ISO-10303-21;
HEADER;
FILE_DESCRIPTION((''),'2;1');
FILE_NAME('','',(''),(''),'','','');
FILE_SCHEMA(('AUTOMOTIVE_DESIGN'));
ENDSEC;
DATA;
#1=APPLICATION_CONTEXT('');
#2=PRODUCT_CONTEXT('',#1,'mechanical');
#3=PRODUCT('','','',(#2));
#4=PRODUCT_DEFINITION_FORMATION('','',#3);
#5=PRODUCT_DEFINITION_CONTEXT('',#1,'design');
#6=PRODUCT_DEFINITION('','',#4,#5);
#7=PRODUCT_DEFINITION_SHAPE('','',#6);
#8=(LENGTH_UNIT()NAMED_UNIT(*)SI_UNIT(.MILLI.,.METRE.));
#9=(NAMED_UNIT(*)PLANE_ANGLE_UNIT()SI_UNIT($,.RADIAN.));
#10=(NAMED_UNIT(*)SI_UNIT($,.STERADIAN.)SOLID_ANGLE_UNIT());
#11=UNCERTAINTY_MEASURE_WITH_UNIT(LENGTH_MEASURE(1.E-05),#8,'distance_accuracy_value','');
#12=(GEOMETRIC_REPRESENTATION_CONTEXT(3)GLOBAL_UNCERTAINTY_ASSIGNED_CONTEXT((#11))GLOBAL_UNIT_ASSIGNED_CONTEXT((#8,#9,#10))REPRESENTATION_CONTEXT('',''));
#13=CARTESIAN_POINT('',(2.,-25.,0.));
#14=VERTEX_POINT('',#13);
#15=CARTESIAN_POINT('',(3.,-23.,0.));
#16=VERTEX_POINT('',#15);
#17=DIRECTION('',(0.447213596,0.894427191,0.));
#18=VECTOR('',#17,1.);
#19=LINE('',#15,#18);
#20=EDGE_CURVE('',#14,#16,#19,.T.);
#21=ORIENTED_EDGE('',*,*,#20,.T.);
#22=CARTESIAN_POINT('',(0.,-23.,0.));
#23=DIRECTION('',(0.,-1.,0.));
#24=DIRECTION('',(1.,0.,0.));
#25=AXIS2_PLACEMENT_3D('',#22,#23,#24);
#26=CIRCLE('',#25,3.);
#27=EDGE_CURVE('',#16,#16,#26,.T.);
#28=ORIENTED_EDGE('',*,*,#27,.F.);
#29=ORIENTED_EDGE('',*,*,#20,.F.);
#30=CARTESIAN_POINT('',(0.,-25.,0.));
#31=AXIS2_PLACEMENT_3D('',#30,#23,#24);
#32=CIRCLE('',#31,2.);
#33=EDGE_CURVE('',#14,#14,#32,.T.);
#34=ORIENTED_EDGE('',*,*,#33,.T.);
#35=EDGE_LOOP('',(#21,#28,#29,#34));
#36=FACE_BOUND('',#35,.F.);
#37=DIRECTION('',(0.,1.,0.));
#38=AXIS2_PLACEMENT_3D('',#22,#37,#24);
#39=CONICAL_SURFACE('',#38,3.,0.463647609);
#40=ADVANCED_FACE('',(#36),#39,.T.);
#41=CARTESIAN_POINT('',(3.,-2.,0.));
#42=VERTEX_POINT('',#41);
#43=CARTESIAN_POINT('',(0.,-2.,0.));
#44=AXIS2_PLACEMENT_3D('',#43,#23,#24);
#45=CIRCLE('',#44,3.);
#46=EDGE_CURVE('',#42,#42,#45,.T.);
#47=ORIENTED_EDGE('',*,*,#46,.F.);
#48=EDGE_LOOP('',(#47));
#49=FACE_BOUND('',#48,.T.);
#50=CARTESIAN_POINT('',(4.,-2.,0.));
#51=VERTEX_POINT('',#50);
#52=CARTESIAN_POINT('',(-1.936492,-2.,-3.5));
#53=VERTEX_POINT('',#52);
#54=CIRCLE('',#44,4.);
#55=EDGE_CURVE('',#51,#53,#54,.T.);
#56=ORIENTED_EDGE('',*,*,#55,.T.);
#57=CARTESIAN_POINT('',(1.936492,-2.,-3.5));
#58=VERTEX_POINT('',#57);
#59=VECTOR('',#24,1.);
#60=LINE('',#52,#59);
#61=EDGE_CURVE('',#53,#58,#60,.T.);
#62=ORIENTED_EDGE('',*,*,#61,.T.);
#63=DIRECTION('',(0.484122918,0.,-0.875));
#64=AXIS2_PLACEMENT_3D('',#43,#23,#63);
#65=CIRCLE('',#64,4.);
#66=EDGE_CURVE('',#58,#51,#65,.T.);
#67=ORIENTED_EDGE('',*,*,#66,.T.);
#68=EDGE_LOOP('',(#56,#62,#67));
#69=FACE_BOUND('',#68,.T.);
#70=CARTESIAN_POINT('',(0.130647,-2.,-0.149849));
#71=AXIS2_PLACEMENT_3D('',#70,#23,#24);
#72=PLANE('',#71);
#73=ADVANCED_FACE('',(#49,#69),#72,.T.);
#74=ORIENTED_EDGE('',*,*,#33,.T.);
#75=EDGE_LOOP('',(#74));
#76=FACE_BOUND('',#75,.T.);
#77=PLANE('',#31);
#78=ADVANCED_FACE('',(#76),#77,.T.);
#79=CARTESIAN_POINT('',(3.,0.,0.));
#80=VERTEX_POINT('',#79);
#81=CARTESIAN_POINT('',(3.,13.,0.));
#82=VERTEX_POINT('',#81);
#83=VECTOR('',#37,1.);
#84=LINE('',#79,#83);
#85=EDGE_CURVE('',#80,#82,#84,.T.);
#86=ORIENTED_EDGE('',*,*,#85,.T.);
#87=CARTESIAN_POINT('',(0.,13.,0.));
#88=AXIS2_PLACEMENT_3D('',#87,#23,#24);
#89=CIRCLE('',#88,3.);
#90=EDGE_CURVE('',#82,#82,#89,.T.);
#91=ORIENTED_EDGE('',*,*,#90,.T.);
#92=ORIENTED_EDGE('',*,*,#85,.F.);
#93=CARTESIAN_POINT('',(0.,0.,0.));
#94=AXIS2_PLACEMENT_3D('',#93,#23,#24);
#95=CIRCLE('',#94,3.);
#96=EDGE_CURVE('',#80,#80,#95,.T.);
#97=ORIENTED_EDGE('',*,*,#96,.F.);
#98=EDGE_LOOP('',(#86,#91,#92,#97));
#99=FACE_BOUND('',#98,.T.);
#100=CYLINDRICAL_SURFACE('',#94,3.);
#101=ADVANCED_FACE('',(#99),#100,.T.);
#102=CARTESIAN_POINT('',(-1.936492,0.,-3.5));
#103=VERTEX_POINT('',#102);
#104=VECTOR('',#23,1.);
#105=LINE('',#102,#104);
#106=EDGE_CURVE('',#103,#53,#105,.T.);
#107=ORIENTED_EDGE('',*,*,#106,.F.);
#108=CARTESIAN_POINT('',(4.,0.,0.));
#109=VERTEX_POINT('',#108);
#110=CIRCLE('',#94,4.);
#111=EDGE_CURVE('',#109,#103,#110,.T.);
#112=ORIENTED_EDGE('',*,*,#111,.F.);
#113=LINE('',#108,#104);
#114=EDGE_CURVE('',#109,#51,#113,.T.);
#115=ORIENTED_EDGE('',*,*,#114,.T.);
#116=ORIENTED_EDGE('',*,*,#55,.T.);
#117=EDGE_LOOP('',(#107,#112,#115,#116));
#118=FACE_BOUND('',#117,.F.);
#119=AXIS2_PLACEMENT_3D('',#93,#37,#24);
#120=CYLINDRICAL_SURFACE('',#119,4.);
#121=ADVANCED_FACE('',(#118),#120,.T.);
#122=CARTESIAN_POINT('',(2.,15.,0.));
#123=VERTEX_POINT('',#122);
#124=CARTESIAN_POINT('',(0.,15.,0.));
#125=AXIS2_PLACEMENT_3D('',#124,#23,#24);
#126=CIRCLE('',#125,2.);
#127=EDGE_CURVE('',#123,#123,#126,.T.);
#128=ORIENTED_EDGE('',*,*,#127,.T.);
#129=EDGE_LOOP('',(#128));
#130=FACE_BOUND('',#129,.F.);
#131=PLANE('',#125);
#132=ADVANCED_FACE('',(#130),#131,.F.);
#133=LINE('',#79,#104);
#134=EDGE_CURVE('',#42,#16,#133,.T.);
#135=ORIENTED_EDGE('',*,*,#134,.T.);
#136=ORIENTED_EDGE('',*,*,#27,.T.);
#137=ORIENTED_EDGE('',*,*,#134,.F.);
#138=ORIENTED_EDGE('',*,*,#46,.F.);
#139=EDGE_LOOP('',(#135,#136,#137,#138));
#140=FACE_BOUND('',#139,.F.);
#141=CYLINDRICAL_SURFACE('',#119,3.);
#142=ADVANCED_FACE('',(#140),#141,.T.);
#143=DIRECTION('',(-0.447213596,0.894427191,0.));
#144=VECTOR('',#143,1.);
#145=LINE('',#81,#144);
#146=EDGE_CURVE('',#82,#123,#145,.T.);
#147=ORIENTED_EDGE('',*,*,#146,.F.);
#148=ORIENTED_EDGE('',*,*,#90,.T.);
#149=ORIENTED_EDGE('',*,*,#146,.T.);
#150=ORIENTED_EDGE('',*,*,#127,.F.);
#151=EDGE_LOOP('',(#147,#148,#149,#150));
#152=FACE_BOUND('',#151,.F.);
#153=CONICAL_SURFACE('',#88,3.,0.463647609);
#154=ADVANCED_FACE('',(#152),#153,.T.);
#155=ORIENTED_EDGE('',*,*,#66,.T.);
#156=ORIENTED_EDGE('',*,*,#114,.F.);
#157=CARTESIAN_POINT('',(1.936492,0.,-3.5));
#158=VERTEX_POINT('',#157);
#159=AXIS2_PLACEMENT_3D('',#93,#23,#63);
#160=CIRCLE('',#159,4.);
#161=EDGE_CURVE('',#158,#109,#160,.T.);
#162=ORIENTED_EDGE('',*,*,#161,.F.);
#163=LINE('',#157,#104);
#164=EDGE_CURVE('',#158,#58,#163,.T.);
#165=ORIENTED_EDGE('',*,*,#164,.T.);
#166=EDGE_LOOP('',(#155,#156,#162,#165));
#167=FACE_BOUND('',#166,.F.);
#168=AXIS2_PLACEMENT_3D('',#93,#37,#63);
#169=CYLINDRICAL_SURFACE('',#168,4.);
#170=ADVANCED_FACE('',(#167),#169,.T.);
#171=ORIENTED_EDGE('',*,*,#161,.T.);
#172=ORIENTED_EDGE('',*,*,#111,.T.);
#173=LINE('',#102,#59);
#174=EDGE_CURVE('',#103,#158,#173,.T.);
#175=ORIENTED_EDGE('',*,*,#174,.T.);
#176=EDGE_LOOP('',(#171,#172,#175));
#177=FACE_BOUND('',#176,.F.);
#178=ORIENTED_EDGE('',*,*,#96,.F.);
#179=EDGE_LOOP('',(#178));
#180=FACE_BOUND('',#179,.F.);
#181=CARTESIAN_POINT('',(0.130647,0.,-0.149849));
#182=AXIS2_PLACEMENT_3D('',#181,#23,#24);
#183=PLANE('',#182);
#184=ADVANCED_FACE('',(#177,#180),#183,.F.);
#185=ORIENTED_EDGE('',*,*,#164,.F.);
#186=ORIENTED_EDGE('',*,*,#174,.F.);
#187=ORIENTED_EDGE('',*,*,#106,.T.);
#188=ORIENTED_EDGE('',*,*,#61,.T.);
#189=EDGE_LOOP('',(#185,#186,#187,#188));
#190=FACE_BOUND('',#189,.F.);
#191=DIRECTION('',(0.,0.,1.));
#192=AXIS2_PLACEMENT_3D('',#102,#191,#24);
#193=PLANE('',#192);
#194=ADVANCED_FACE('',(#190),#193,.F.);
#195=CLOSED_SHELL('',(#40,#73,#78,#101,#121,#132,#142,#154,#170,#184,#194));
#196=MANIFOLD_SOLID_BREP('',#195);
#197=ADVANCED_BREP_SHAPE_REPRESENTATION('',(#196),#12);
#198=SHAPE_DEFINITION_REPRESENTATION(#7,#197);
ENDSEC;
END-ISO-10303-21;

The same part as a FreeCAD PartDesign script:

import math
import FreeCAD as App
import Part
import Sketcher

V = App.Vector


def edges_at(feature, points):
    """Names of the edges that pass closest to the given points."""
    edges = feature.Shape.Edges
    near = lambda p: min(range(len(edges)), key=lambda i: edges[i].distToShape(Part.Vertex(*p))[0])
    return sorted({f"Edge{near(p) + 1}" for p in points})

doc = App.newDocument("Part")
body = doc.addObject("PartDesign::Body", "Body")

sketch1 = doc.addObject("Sketcher::SketchObject", "Sketch")
body.addObject(sketch1)
sketch1.AttachmentSupport = (doc.XZ_Plane, [""])
sketch1.MapMode = "FlatFace"
sketch1.addGeometry(Part.Circle(V(0, 0, 0), V(0, 0, 1), 3), False)
sketch1.addConstraint([
    Sketcher.Constraint("Coincident", 0, 3, -1, 1),
    Sketcher.Constraint("Diameter", 0, 6.0),
])
pad1 = doc.addObject("PartDesign::Pad", "Pad")
body.addObject(pad1)
pad1.Profile = sketch1
pad1.Length = 25

sketch2 = doc.addObject("Sketcher::SketchObject", "Sketch001")
body.addObject(sketch2)
sketch2.AttachmentSupport = (doc.XZ_Plane, [""])
sketch2.MapMode = "FlatFace"
sketch2.addGeometry([
    Part.ArcOfCircle(Part.Circle(V(0, 0, 0), V(0, 0, 1), 4), math.radians(-61), math.radians(0)),
    Part.ArcOfCircle(Part.Circle(V(0, 0, 0), V(0, 0, 1), 4), math.radians(0), math.radians(241)),
    Part.LineSegment(V(-1.9, -3.5, 0), V(1.9, -3.5, 0)),
    Part.Circle(V(0, 0, 0), V(0, 0, 1), 3),
], False)
sketch2.addConstraint([
    Sketcher.Constraint("Tangent", 0, 2, 1, 1),
    Sketcher.Constraint("Coincident", 1, 2, 2, 1),
    Sketcher.Constraint("Coincident", 2, 2, 0, 1),
    Sketcher.Constraint("Horizontal", 2),
    Sketcher.Constraint("Coincident", 0, 3, -1, 1),
    Sketcher.Constraint("Coincident", 3, 3, -1, 1),
    Sketcher.Constraint("Equal", 0, 1),
    Sketcher.Constraint("PointOnObject", 0, 2, -1),
    Sketcher.Constraint("Diameter", 3, 6.0),
    Sketcher.Constraint("Radius", 0, 4.0),
    Sketcher.Constraint("DistanceY", 1, 2, -1, 1, 3.5),
])
pad2 = doc.addObject("PartDesign::Pad", "Pad001")
body.addObject(pad2)
pad2.Profile = sketch2
pad2.Length = 2

sketch3 = doc.addObject("Sketcher::SketchObject", "Sketch002")
body.addObject(sketch3)
sketch3.AttachmentSupport = (doc.XZ_Plane, [""])
sketch3.MapMode = "FlatFace"
sketch3.addGeometry(Part.Circle(V(0, 0, 0), V(0, 0, 1), 3), False)
sketch3.addConstraint([
    Sketcher.Constraint("Coincident", 0, 3, -1, 1),
    Sketcher.Constraint("Diameter", 0, 6.0),
])
pad3 = doc.addObject("PartDesign::Pad", "Pad002")
body.addObject(pad3)
pad3.Profile = sketch3
pad3.Length = 15
pad3.Reversed = True
doc.recompute()

chamfer = doc.addObject("PartDesign::Chamfer", "Chamfer")
body.addObject(chamfer)
chamfer.Base = (pad3, edges_at(pad3, [(-3, 15, 0)]))
chamfer.ChamferType = "Two distances"
chamfer.Size = 2
chamfer.Size2 = 1
doc.recompute()

chamfer2 = doc.addObject("PartDesign::Chamfer", "Chamfer001")
body.addObject(chamfer2)
chamfer2.Base = (chamfer, edges_at(chamfer, [(-3, -25, 0)]))
chamfer2.ChamferType = "Two distances"
chamfer2.Size = 1
chamfer2.Size2 = 2
chamfer2.FlipDirection = True

doc.recompute()
